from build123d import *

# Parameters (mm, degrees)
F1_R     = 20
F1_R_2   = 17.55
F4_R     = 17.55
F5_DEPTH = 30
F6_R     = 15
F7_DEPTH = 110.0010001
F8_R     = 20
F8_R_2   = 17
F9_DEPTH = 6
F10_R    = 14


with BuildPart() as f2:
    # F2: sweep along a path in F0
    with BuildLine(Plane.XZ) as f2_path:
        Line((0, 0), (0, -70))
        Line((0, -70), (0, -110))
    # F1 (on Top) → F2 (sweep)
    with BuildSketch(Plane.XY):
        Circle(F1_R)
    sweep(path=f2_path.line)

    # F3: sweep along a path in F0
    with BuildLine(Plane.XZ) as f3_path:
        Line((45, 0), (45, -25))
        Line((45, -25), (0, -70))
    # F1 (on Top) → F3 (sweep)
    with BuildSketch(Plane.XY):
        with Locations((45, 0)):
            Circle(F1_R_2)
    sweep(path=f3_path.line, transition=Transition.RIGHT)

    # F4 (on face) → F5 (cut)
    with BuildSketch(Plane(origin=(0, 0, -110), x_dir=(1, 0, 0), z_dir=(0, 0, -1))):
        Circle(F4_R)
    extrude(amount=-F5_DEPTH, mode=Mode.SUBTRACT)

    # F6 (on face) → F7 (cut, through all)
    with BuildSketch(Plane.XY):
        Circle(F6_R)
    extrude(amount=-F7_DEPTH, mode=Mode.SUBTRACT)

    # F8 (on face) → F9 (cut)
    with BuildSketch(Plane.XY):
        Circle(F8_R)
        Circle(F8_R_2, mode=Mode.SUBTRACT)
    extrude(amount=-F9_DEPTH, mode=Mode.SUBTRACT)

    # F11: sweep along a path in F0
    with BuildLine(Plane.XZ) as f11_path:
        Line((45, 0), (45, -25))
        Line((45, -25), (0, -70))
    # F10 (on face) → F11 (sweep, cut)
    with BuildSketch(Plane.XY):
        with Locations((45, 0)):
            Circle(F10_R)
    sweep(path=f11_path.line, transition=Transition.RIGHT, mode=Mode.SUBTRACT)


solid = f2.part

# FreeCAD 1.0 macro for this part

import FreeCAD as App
import Part
import Sketcher
Q = App.Units.Quantity

doc = App.newDocument("Part")
body = doc.addObject("PartDesign::Body", "Body")

sketch1 = body.newObject("Sketcher::SketchObject", "Sketch")
sketch1.AttachmentSupport = (doc.getObject("XY_Plane"), [""])
sketch1.MapMode = "FlatFace"
sketch1.addGeometry(Part.Circle(App.Vector(0, 0, 0), App.Vector(0, 0, 1), 20), False)
sketch1.addConstraint(Sketcher.Constraint("Coincident", 0, 3, -1, 1))
sketch1.addConstraint(Sketcher.Constraint("Diameter", 0, 40.0))

sketch2 = body.newObject("Sketcher::SketchObject", "Sketch001")
sketch2.AttachmentSupport = (doc.getObject("XZ_Plane"), [""])
sketch2.MapMode = "FlatFace"
sketch2.addGeometry(Part.LineSegment(App.Vector(0, 0, 0), App.Vector(0, -110, 0)), False)
sketch2.addConstraint(Sketcher.Constraint("Vertical", 0))
sketch2.addConstraint(Sketcher.Constraint("Coincident", 0, 1, -1, 1))
sketch2.addConstraint(Sketcher.Constraint("DistanceY", 0, 2, 0, 1, 110.0))
doc.recompute()

additivepipe = body.newObject("PartDesign::AdditivePipe", "AdditivePipe")
additivepipe.Profile = sketch1
additivepipe.Spine = (sketch2, ["Edge1"])

sketch3 = body.newObject("Sketcher::SketchObject", "Sketch002")
sketch3.AttachmentSupport = (doc.getObject("XY_Plane"), [""])
sketch3.MapMode = "FlatFace"
sketch3.addGeometry(Part.Circle(App.Vector(45, 0, 0), App.Vector(0, 0, 1), 18), False)
sketch3.addConstraint(Sketcher.Constraint("PointOnObject", 0, 3, -1))
sketch3.addConstraint(Sketcher.Constraint("Diameter", 0, 35.1))
sketch3.addConstraint(Sketcher.Constraint("DistanceX", -1, 1, 0, 3, 45.0))

sketch4 = body.newObject("Sketcher::SketchObject", "Sketch003")
sketch4.AttachmentSupport = (doc.getObject("XZ_Plane"), [""])
sketch4.MapMode = "FlatFace"
sketch4.addGeometry(Part.LineSegment(App.Vector(45, 0, 0), App.Vector(45, -25, 0)), False)
sketch4.addGeometry(Part.LineSegment(App.Vector(45, -25, 0), App.Vector(0, -70, 0)), False)
sketch4.addConstraint(Sketcher.Constraint("Coincident", 0, 2, 1, 1))
sketch4.addConstraint(Sketcher.Constraint("Vertical", 0))
sketch4.addConstraint(Sketcher.Constraint("PointOnObject", 0, 1, -1))
sketch4.addConstraint(Sketcher.Constraint("PointOnObject", 1, 2, -2))
sketch4.addConstraint(Sketcher.Constraint("DistanceY", 0, 2, 0, 1, 25.0))
sketch4.addConstraint(Sketcher.Constraint("Angle", 1, Q("-135 deg")))
sketch4.addConstraint(Sketcher.Constraint("DistanceX", -1, 1, 0, 1, 45.0))
doc.recompute()

additivepipe2 = body.newObject("PartDesign::AdditivePipe", "AdditivePipe001")
additivepipe2.Profile = sketch3
additivepipe2.Spine = (sketch4, ["Edge1", "Edge2"])
additivepipe2.Transition = "Right corner"

sketch5 = body.newObject("Sketcher::SketchObject", "Sketch004")
sketch5.AttachmentSupport = (doc.getObject("XY_Plane"), [""])
sketch5.MapMode = "FlatFace"
sketch5.AttachmentOffset = App.Placement(App.Vector(0, 0, -110), App.Rotation())
sketch5.addGeometry(Part.Circle(App.Vector(0, 0, 0), App.Vector(0, 0, 1), 18), False)
sketch5.addConstraint(Sketcher.Constraint("Coincident", 0, 3, -1, 1))
sketch5.addConstraint(Sketcher.Constraint("Diameter", 0, 35.1))
pocket1 = body.newObject("PartDesign::Pocket", "Pocket")
pocket1.Profile = sketch5
pocket1.Length = 30
pocket1.Reversed = True

sketch6 = body.newObject("Sketcher::SketchObject", "Sketch005")
sketch6.AttachmentSupport = (doc.getObject("XY_Plane"), [""])
sketch6.MapMode = "FlatFace"
sketch6.addGeometry(Part.Circle(App.Vector(0, 0, 0), App.Vector(0, 0, 1), 15), False)
sketch6.addConstraint(Sketcher.Constraint("Coincident", 0, 3, -1, 1))
sketch6.addConstraint(Sketcher.Constraint("Diameter", 0, 30.0))
pocket2 = body.newObject("PartDesign::Pocket", "Pocket001")
pocket2.Profile = sketch6
pocket2.Type = "ThroughAll"

sketch7 = body.newObject("Sketcher::SketchObject", "Sketch006")
sketch7.AttachmentSupport = (doc.getObject("XY_Plane"), [""])
sketch7.MapMode = "FlatFace"
sketch7.addGeometry(Part.Circle(App.Vector(0, 0, 0), App.Vector(0, 0, 1), 20), False)
sketch7.addGeometry(Part.Circle(App.Vector(0, 0, 0), App.Vector(0, 0, 1), 17), False)
sketch7.addConstraint(Sketcher.Constraint("Coincident", 0, 3, -1, 1))
sketch7.addConstraint(Sketcher.Constraint("Coincident", 1, 3, -1, 1))
sketch7.addConstraint(Sketcher.Constraint("Diameter", 0, 40.0))
sketch7.addConstraint(Sketcher.Constraint("Diameter", 1, 34.0))
pocket3 = body.newObject("PartDesign::Pocket", "Pocket002")
pocket3.Profile = sketch7
pocket3.Length = 6

sketch8 = body.newObject("Sketcher::SketchObject", "Sketch007")
sketch8.AttachmentSupport = (doc.getObject("XY_Plane"), [""])
sketch8.MapMode = "FlatFace"
sketch8.addGeometry(Part.Circle(App.Vector(45, 0, 0), App.Vector(0, 0, 1), 14), False)
sketch8.addConstraint(Sketcher.Constraint("PointOnObject", 0, 3, -1))
sketch8.addConstraint(Sketcher.Constraint("Diameter", 0, 28.0))
sketch8.addConstraint(Sketcher.Constraint("DistanceX", -1, 1, 0, 3, 45.0))

sketch9 = body.newObject("Sketcher::SketchObject", "Sketch008")
sketch9.AttachmentSupport = (doc.getObject("XZ_Plane"), [""])
sketch9.MapMode = "FlatFace"
sketch9.addGeometry(Part.LineSegment(App.Vector(45, 0, 0), App.Vector(45, -25, 0)), False)
sketch9.addGeometry(Part.LineSegment(App.Vector(45, -25, 0), App.Vector(0, -70, 0)), False)
sketch9.addConstraint(Sketcher.Constraint("Coincident", 0, 2, 1, 1))
sketch9.addConstraint(Sketcher.Constraint("Vertical", 0))
sketch9.addConstraint(Sketcher.Constraint("PointOnObject", 0, 1, -1))
sketch9.addConstraint(Sketcher.Constraint("PointOnObject", 1, 2, -2))
sketch9.addConstraint(Sketcher.Constraint("DistanceY", 0, 2, 0, 1, 25.0))
sketch9.addConstraint(Sketcher.Constraint("Angle", 1, Q("-135 deg")))
sketch9.addConstraint(Sketcher.Constraint("DistanceX", -1, 1, 0, 1, 45.0))
doc.recompute()

subtractivepipe = body.newObject("PartDesign::SubtractivePipe", "SubtractivePipe")
subtractivepipe.Profile = sketch8
subtractivepipe.Spine = (sketch9, ["Edge1", "Edge2"])
subtractivepipe.Transition = "Right corner"

doc.recompute()
